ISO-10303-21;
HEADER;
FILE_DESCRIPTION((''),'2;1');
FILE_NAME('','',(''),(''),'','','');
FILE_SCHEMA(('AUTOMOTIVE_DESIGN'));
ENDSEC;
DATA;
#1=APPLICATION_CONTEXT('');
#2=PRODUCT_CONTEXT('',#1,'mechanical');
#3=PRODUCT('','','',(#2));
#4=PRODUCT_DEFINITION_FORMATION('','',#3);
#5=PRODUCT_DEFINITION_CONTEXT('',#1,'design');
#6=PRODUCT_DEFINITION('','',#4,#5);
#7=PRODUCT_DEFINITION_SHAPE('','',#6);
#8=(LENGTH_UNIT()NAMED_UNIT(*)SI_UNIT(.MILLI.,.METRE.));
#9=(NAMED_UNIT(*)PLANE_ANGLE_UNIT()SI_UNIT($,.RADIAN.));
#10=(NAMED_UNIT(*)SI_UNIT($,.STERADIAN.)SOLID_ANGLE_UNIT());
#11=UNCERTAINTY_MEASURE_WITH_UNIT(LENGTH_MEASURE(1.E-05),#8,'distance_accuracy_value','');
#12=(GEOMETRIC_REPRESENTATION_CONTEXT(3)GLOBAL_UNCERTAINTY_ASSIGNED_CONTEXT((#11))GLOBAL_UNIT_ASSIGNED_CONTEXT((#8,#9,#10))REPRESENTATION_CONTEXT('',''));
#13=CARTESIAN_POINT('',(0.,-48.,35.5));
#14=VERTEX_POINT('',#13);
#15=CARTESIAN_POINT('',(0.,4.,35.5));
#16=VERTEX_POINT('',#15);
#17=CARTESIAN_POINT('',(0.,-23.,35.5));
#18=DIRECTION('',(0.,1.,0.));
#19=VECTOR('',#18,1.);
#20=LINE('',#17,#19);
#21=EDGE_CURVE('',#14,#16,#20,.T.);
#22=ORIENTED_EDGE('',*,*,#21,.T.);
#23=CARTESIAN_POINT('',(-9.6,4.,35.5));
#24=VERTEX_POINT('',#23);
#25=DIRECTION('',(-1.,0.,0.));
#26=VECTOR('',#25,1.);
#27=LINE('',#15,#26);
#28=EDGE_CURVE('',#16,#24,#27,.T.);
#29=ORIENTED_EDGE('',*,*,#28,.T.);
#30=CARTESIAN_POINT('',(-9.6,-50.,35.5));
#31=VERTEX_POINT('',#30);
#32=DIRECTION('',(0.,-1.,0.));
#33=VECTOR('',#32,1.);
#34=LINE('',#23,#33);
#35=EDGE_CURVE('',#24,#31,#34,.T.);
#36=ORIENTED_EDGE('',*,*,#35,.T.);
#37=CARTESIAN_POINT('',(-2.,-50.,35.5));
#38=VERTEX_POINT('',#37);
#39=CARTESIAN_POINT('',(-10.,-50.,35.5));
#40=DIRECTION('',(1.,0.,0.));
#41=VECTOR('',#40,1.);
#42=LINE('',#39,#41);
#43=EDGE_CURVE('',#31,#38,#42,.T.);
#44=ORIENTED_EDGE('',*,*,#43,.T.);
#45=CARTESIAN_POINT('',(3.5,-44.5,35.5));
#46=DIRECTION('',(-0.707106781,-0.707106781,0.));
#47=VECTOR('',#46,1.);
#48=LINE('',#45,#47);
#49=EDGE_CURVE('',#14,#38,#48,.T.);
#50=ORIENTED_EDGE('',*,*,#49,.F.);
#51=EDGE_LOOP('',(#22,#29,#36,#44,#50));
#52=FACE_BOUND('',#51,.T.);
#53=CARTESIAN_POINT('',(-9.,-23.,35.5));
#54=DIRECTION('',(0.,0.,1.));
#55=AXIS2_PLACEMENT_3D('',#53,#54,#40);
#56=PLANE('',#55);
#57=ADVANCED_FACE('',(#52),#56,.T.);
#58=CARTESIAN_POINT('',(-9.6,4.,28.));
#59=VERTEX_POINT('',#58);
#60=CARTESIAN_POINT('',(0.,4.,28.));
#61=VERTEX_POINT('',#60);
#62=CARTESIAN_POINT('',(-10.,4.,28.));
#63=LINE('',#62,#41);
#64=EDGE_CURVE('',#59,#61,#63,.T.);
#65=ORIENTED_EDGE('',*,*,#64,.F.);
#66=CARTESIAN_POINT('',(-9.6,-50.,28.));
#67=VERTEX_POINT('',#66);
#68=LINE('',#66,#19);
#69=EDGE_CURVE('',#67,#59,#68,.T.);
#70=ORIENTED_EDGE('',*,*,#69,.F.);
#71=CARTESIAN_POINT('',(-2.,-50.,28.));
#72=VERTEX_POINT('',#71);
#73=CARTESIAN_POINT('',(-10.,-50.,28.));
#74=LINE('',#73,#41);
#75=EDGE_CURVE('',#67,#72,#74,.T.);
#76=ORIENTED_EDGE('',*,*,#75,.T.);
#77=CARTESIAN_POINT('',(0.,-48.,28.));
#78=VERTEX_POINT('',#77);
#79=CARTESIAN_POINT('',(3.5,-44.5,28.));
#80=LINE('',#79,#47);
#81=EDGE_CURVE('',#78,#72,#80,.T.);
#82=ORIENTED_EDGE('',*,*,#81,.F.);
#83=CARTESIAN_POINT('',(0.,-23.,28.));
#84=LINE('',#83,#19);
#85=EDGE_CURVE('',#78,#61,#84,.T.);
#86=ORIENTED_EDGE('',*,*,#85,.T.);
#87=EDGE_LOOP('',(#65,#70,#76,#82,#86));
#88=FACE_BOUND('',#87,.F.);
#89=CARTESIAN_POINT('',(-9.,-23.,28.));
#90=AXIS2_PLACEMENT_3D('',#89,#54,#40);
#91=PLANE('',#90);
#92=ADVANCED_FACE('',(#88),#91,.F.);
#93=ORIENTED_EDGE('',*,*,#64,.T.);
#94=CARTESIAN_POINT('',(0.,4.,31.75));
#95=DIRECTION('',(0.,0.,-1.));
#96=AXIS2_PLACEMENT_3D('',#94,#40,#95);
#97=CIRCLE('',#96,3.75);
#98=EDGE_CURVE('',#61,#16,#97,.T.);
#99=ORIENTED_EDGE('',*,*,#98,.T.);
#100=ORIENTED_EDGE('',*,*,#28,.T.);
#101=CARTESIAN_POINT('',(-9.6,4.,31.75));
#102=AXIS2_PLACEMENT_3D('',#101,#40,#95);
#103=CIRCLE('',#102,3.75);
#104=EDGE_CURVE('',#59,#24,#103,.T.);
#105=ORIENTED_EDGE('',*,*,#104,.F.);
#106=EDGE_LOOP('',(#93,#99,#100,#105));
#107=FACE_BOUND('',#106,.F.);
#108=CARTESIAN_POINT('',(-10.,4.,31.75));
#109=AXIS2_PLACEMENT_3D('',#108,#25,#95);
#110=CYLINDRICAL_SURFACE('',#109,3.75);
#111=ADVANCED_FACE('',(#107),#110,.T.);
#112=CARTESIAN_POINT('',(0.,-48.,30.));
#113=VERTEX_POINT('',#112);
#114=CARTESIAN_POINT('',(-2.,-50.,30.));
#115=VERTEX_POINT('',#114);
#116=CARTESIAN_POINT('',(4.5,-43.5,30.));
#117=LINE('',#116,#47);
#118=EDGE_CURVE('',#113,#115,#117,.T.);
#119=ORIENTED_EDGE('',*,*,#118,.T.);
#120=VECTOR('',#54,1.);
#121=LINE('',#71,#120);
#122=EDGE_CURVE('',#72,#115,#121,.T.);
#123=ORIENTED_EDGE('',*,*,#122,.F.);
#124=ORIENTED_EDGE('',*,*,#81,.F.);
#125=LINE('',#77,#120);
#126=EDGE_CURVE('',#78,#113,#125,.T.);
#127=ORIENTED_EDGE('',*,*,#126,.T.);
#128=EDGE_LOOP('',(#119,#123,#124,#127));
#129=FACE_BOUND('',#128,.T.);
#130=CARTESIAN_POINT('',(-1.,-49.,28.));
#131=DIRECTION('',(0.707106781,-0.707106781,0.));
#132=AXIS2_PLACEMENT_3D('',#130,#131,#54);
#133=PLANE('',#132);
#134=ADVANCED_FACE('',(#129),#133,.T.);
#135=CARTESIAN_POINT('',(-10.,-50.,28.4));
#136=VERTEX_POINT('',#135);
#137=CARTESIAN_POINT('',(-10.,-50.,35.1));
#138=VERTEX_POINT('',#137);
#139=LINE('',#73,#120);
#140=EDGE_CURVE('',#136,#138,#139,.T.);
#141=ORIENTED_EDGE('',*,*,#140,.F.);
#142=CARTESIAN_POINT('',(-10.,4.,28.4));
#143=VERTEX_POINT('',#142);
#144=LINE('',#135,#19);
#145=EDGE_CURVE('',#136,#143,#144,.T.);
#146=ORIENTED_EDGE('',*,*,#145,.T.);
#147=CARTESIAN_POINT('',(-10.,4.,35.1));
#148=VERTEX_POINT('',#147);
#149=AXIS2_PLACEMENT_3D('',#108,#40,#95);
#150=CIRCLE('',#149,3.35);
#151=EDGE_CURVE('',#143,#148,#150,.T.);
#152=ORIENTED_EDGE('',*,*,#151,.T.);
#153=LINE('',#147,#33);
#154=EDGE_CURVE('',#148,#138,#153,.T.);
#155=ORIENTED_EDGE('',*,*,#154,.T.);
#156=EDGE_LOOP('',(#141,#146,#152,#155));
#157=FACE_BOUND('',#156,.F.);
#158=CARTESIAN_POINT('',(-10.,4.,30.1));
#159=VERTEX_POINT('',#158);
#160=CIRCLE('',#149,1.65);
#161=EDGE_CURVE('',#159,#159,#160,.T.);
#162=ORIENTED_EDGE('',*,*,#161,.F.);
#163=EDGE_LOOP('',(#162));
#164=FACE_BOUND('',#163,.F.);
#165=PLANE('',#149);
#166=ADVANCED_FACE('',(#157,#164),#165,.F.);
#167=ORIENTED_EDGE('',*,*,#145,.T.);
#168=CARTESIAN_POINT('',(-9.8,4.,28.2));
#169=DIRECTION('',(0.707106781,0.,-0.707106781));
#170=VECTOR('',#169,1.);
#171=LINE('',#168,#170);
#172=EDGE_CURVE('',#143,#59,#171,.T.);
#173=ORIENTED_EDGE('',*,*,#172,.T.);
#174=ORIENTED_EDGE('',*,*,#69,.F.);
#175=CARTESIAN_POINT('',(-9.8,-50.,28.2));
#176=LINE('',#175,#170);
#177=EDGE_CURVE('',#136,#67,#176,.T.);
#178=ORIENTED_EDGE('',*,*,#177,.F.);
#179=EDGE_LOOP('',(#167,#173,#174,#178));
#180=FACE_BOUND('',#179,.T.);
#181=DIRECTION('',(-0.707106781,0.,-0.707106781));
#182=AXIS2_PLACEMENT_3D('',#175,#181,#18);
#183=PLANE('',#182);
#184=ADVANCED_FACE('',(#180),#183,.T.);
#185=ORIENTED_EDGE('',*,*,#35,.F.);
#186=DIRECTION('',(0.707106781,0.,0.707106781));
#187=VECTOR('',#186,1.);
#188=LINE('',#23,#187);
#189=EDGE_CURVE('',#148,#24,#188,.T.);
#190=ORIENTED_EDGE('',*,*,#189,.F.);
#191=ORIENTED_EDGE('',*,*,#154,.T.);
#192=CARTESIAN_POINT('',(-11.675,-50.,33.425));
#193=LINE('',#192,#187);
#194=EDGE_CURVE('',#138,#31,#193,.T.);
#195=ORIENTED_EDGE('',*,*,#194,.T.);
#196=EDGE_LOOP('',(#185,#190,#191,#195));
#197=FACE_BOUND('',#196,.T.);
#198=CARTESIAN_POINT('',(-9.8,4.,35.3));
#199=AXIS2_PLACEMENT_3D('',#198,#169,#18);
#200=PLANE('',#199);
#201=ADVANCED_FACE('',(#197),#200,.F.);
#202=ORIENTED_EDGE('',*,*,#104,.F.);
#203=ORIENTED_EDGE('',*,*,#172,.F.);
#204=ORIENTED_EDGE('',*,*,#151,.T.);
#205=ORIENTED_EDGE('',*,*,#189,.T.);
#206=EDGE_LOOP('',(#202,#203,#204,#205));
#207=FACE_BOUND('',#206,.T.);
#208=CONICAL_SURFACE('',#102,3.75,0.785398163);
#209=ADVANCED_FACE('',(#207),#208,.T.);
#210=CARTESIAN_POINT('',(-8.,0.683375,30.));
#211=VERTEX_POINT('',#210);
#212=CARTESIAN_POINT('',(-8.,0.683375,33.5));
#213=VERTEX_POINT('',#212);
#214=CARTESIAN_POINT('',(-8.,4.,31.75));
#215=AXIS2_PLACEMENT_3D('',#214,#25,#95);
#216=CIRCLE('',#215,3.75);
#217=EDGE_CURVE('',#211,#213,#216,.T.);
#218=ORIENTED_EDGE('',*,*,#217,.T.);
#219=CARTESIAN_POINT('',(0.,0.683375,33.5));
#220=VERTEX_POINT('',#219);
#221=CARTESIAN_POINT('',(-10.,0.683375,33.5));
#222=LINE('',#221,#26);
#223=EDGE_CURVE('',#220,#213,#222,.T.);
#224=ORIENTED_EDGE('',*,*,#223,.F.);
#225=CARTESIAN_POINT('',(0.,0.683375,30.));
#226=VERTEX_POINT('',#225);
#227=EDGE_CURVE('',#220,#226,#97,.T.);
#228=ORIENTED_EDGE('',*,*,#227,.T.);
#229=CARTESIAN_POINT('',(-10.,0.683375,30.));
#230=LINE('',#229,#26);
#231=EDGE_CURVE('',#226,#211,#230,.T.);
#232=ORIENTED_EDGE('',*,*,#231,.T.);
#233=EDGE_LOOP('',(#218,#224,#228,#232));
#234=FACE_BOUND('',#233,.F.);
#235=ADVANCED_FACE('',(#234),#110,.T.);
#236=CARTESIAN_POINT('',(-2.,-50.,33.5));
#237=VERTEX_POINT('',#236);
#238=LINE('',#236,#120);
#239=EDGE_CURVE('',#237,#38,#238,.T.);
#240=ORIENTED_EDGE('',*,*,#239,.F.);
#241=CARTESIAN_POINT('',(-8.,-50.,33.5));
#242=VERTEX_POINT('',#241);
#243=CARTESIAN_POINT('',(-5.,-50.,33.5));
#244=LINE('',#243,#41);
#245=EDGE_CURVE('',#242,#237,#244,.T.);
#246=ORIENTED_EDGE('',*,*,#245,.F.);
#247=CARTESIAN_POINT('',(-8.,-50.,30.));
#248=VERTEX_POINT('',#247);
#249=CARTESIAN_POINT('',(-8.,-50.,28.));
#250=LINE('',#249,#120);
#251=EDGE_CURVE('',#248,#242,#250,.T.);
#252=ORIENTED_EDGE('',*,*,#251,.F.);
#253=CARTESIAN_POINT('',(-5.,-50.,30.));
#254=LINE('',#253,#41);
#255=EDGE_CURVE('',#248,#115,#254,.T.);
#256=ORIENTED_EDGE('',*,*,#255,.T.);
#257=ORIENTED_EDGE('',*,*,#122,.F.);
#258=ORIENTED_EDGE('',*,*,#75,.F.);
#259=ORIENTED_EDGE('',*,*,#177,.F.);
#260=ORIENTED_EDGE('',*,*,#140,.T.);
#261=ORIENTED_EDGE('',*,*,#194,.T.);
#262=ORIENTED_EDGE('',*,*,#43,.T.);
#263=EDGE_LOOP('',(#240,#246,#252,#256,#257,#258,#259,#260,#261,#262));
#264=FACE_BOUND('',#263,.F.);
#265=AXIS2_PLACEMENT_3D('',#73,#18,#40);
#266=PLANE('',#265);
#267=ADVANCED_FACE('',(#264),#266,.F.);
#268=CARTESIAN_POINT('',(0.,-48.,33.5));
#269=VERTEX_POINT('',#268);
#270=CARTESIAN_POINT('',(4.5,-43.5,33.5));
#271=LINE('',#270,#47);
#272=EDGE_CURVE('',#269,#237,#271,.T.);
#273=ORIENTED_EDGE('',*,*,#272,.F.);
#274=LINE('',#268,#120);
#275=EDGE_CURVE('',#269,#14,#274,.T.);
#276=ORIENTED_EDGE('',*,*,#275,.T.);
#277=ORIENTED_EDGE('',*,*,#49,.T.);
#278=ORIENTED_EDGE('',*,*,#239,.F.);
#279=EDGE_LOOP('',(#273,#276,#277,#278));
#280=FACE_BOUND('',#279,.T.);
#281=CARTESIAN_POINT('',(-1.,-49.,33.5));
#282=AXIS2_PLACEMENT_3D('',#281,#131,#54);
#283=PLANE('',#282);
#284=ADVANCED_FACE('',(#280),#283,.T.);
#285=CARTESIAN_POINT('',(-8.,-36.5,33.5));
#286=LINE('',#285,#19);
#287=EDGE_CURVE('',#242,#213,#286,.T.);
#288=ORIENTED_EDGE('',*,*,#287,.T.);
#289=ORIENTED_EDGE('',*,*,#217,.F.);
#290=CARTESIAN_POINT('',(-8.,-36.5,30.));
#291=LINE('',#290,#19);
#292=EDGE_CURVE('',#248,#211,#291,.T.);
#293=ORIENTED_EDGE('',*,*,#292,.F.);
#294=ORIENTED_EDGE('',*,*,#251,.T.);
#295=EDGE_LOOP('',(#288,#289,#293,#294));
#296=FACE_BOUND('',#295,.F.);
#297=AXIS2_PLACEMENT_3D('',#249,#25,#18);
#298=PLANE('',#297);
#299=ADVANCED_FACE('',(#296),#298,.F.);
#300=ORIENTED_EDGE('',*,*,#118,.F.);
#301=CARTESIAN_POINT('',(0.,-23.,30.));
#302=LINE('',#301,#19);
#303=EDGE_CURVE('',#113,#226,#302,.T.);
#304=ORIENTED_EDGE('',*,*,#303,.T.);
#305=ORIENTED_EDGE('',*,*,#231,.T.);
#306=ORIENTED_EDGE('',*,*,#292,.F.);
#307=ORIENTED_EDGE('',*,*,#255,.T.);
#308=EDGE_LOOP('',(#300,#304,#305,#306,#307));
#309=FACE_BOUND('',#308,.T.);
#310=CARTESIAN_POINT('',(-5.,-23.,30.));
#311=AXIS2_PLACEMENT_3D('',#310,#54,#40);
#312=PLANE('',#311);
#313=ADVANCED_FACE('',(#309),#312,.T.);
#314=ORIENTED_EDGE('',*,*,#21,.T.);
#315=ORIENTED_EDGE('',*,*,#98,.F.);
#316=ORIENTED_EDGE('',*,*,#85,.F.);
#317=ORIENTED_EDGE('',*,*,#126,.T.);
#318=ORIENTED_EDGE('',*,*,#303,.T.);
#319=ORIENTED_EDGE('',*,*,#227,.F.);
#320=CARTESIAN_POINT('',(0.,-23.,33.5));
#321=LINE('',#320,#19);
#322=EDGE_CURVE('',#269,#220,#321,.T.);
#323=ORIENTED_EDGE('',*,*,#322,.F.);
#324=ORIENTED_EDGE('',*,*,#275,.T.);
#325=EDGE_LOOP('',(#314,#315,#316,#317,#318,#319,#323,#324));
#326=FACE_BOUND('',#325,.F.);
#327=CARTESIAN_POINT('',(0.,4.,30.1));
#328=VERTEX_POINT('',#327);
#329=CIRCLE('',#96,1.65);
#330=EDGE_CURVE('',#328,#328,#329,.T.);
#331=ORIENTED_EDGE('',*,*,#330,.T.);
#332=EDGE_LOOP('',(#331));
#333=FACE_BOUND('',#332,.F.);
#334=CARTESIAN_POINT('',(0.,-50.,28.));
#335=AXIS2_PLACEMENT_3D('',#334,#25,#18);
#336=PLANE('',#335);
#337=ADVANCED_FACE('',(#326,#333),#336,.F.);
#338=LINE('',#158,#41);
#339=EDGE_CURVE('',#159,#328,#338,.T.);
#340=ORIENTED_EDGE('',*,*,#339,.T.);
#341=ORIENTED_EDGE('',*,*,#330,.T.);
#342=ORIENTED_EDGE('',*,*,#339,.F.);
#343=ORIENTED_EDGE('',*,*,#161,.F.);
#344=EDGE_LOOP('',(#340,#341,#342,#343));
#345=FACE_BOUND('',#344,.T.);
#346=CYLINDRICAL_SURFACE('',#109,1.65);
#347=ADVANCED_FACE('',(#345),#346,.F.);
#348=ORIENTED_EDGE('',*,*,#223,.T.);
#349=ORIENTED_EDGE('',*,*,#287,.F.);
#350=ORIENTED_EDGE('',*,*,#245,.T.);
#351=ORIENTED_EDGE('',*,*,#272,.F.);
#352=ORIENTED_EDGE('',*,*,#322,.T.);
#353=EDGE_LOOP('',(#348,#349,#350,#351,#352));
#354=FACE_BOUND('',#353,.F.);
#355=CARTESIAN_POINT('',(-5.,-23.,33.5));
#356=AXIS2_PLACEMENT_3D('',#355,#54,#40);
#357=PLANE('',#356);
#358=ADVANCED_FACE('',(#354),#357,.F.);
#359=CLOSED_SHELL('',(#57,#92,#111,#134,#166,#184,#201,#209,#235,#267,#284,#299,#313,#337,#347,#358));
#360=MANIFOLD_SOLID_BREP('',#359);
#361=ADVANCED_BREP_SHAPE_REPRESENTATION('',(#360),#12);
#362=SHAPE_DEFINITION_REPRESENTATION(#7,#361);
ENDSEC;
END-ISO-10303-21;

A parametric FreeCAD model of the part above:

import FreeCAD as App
import Part
import Sketcher
from FreeCAD import Vector


def edges_at(feature, points):
    """Names of the edges that pass closest to the given points."""
    edges = feature.Shape.Edges
    near = lambda p: min(range(len(edges)), key=lambda i: edges[i].distToShape(Part.Vertex(*p))[0])
    return sorted({f"Edge{near(p) + 1}" for p in points})


def add_polygon(sketch, points):
    """Adds a closed chain of lines whose ends are joined by coincident constraints."""
    first, n = sketch.GeometryCount, len(points)
    for a, b in zip(points, points[1:] + points[:1]):
        sketch.addGeometry(Part.LineSegment(App.Vector(*a, 0), App.Vector(*b, 0)), False)
    for i in range(n):
        sketch.addConstraint(Sketcher.Constraint("Coincident", first + i, 2, first + (i + 1) % n, 1))

doc = App.newDocument("Part")
body = doc.addObject("PartDesign::Body", "Body")

sketch1 = body.newObject("Sketcher::SketchObject", "Sketch")
sketch1.AttachmentSupport = (doc.getObject("YZ_Plane"), [""])
sketch1.MapMode = "FlatFace"
sketch1.AttachmentOffset = App.Placement(Vector(0, 0, -10), App.Rotation())
sketch1.addGeometry(Part.Circle(Vector(4, 31.8, 0), Vector(0, 0, 1), 1.6), False)
sketch1.addConstraint(Sketcher.Constraint("Diameter", 0, 3.3))
sketch1.addConstraint(Sketcher.Constraint("DistanceX", -1, 1, 0, 3, 4.0))
sketch1.addConstraint(Sketcher.Constraint("DistanceY", -1, 1, 0, 3, 31.75))
pad1 = body.newObject("PartDesign::Pad", "Pad")
pad1.Profile = sketch1
pad1.Length = 10
body2 = doc.addObject("PartDesign::Body", "Body001")

sketch2 = body2.newObject("Sketcher::SketchObject", "Sketch001")
sketch2.AttachmentSupport = (doc.getObject("YZ_Plane001"), [""])
sketch2.MapMode = "FlatFace"
sketch2.AttachmentOffset = App.Placement(Vector(0, 0, -10), App.Rotation())
sketch2.addGeometry(Part.Circle(Vector(4, 31.8, 0), Vector(0, 0, 1), 3.8), False)
sketch2.addConstraint(Sketcher.Constraint("Diameter", 0, 7.5))
sketch2.addConstraint(Sketcher.Constraint("DistanceX", -1, 1, 0, 3, 4.0))
sketch2.addConstraint(Sketcher.Constraint("DistanceY", -1, 1, 0, 3, 31.75))
pad2 = body2.newObject("PartDesign::Pad", "Pad001")
pad2.Profile = sketch2
pad2.Length = 10
body3 = doc.addObject("PartDesign::Body", "Body002")

sketch3 = body3.newObject("Sketcher::SketchObject", "Sketch002")
sketch3.AttachmentSupport = (doc.getObject("XY_Plane002"), [""])
sketch3.MapMode = "FlatFace"
sketch3.AttachmentOffset = App.Placement(Vector(0, 0, 33.5), App.Rotation())
add_polygon(sketch3, [(-10, 4), (-10, -50), (0, -50), (0, 4)])
sketch3.addConstraint(Sketcher.Constraint("Vertical", 0))
sketch3.addConstraint(Sketcher.Constraint("Horizontal", 1))
sketch3.addConstraint(Sketcher.Constraint("Vertical", 2))
sketch3.addConstraint(Sketcher.Constraint("Horizontal", 3))
sketch3.addConstraint(Sketcher.Constraint("PointOnObject", 1, 2, -2))
sketch3.addConstraint(Sketcher.Constraint("DistanceX", 1, 1, 1, 2, 10.0))
sketch3.addConstraint(Sketcher.Constraint("DistanceY", 0, 2, 0, 1, 54.0))
sketch3.addConstraint(Sketcher.Constraint("DistanceY", 0, 2, -1, 1, 50.0))
pad3 = body3.newObject("PartDesign::Pad", "Pad002")
pad3.Profile = sketch3
pad3.Length = 2
body4 = doc.addObject("PartDesign::Body", "Body003")

sketch4 = body4.newObject("Sketcher::SketchObject", "Sketch003")
sketch4.AttachmentSupport = (doc.getObject("XY_Plane003"), [""])
sketch4.MapMode = "FlatFace"
sketch4.AttachmentOffset = App.Placement(Vector(0, 0, 28), App.Rotation())
add_polygon(sketch4, [(-10, 4), (-10, -50), (0, -50), (0, 4)])
sketch4.addConstraint(Sketcher.Constraint("Vertical", 0))
sketch4.addConstraint(Sketcher.Constraint("Horizontal", 1))
sketch4.addConstraint(Sketcher.Constraint("Vertical", 2))
sketch4.addConstraint(Sketcher.Constraint("Horizontal", 3))
sketch4.addConstraint(Sketcher.Constraint("PointOnObject", 1, 2, -2))
sketch4.addConstraint(Sketcher.Constraint("DistanceX", 1, 1, 1, 2, 10.0))
sketch4.addConstraint(Sketcher.Constraint("DistanceY", 0, 2, 0, 1, 54.0))
sketch4.addConstraint(Sketcher.Constraint("DistanceY", 0, 2, -1, 1, 50.0))
pad4 = body4.newObject("PartDesign::Pad", "Pad003")
pad4.Profile = sketch4
pad4.Length = 2
body5 = doc.addObject("PartDesign::Body", "Body004")

sketch5 = body5.newObject("Sketcher::SketchObject", "Sketch004")
sketch5.AttachmentSupport = (doc.getObject("XY_Plane004"), [""])
sketch5.MapMode = "FlatFace"
sketch5.AttachmentOffset = App.Placement(Vector(0, 0, 28), App.Rotation())
add_polygon(sketch5, [(-10, 4), (-10, -50), (-8, -50), (-8, 4)])
sketch5.addConstraint(Sketcher.Constraint("Vertical", 0))
sketch5.addConstraint(Sketcher.Constraint("Horizontal", 1))
sketch5.addConstraint(Sketcher.Constraint("Vertical", 2))
sketch5.addConstraint(Sketcher.Constraint("Horizontal", 3))
sketch5.addConstraint(Sketcher.Constraint("DistanceX", 1, 1, 1, 2, 2.0))
sketch5.addConstraint(Sketcher.Constraint("DistanceY", 0, 2, 0, 1, 54.0))
sketch5.addConstraint(Sketcher.Constraint("DistanceX", 0, 2, -1, 1, 10.0))
sketch5.addConstraint(Sketcher.Constraint("DistanceY", 0, 2, -1, 1, 50.0))
pad5 = body5.newObject("PartDesign::Pad", "Pad004")
pad5.Profile = sketch5
pad5.Length = 7.5
doc.recompute()

boolean = body5.newObject("PartDesign::Boolean", "Boolean")
boolean.Type = "Fuse"
boolean.addObjects([body2])
doc.recompute()

boolean2 = body5.newObject("PartDesign::Boolean", "Boolean001")
boolean2.Type = "Fuse"
boolean2.addObjects([body3])
doc.recompute()

boolean3 = body5.newObject("PartDesign::Boolean", "Boolean002")
boolean3.Type = "Fuse"
boolean3.addObjects([body4])
doc.recompute()

chamfer = body5.newObject("PartDesign::Chamfer", "Chamfer")
chamfer.Base = (boolean3, edges_at(boolean3, [(0, -50, 29), (0, -50, 34.5)]))
chamfer.Size = 2
doc.recompute()

chamfer2 = body5.newObject("PartDesign::Chamfer", "Chamfer001")
chamfer2.Base = (chamfer, edges_at(chamfer, [(-10, 7.75, 31.75), (-10, -23, 28), (-10, -23, 35.5)]))
chamfer2.Size = 0.4
doc.recompute()

boolean4 = body5.newObject("PartDesign::Boolean", "Boolean003")
boolean4.Type = "Cut"
boolean4.addObjects([body])

doc.recompute()
